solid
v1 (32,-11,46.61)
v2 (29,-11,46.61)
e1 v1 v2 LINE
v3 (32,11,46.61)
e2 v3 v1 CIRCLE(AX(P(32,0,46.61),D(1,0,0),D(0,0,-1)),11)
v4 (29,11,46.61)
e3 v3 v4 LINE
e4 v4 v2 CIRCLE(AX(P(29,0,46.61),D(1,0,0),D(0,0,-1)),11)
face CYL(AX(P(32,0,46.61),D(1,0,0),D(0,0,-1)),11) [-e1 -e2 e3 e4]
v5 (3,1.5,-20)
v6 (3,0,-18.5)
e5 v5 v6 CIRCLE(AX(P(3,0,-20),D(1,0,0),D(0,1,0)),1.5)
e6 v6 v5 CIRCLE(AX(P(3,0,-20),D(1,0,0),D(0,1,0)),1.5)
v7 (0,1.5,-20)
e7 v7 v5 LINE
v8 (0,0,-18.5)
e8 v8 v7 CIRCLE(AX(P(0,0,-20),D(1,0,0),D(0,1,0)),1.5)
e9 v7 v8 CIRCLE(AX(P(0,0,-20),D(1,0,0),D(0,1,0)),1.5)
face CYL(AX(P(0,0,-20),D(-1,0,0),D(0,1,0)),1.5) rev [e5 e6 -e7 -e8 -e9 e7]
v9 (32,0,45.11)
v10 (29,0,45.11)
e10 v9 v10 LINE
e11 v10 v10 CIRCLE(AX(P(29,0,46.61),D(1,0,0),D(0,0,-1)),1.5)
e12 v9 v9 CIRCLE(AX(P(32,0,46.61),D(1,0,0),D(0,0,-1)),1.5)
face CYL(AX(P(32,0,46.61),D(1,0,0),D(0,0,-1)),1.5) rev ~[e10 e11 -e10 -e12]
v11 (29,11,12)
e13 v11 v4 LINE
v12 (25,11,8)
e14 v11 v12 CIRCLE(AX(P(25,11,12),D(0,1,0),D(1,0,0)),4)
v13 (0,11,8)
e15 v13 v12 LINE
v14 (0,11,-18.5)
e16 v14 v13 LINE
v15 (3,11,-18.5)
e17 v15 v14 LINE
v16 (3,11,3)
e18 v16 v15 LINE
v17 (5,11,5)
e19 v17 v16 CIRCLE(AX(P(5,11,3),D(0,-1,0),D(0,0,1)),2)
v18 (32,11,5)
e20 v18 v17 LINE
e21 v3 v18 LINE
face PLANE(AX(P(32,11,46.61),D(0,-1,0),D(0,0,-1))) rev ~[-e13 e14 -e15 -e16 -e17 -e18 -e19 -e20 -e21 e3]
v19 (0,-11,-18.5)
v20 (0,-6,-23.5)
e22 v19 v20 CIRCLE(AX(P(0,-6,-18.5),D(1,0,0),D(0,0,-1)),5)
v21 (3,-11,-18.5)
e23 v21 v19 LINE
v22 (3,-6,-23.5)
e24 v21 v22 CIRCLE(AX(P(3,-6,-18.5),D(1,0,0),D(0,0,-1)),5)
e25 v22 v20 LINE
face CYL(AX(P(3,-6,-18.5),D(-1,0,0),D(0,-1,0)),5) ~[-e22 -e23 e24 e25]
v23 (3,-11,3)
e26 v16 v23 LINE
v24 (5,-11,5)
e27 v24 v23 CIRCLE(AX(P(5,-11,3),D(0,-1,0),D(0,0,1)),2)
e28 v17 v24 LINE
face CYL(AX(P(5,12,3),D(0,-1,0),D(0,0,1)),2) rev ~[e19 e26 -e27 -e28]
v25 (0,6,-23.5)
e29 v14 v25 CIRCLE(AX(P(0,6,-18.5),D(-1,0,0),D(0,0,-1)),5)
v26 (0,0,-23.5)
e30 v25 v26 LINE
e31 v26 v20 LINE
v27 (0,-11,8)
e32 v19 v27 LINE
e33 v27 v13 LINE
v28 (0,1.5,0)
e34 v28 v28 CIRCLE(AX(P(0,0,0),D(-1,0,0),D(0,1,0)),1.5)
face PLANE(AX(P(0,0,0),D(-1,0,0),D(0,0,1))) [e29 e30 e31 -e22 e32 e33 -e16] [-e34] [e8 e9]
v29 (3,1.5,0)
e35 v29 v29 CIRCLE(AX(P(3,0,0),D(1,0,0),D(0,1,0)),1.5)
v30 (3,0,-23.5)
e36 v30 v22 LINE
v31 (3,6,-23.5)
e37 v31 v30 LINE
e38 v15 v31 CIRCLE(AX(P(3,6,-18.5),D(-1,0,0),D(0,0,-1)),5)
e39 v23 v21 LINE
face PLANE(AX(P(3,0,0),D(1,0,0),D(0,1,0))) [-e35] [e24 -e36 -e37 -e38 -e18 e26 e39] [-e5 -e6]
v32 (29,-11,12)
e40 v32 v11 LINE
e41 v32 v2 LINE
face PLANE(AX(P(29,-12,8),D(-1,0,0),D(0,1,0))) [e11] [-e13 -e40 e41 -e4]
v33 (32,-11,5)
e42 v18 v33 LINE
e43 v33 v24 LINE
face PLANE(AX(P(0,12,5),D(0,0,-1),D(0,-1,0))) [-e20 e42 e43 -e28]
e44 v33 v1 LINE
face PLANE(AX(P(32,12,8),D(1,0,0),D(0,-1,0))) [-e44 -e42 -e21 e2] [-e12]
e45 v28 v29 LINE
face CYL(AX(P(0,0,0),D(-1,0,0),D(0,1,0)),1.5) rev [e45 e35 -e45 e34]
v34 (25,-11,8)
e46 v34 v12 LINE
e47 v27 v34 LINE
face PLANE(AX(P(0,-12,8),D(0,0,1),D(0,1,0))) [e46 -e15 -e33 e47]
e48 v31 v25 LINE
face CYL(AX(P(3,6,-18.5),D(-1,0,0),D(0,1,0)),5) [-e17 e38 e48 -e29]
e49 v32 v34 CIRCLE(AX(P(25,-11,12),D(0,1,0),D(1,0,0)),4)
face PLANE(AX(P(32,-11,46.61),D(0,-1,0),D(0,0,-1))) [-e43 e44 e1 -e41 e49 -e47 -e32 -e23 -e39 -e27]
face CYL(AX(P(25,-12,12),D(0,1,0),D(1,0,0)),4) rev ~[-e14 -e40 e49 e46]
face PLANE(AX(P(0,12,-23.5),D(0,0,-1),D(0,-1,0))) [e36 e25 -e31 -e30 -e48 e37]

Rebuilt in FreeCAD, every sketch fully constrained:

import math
import FreeCAD as App
import Part
import Sketcher


def edges_at(feature, points):
    """Names of the edges that pass closest to the given points."""
    edges = feature.Shape.Edges
    near = lambda p: min(range(len(edges)), key=lambda i: edges[i].distToShape(Part.Vertex(*p))[0])
    return sorted({f"Edge{near(p) + 1}" for p in points})


def add_polygon(sketch, points):
    """Adds a closed chain of lines whose ends are joined by coincident constraints."""
    first, n = sketch.GeometryCount, len(points)
    for a, b in zip(points, points[1:] + points[:1]):
        sketch.addGeometry(Part.LineSegment(App.Vector(*a, 0), App.Vector(*b, 0)), False)
    for i in range(n):
        sketch.addConstraint(Sketcher.Constraint("Coincident", first + i, 2, first + (i + 1) % n, 1))

doc = App.newDocument("Part")
params = doc.addObject("Spreadsheet::Sheet", "Params")
for row, (alias, value) in enumerate([
    ("sketch1_diameter", "3 mm"),
    ("sketch1_width", "12 mm"),
    ("sketch1_height", "28.5 mm"),
    ("pad1_length", "3 mm"),
    ("sketch2_height", "3 mm"),
    ("sketch2_width", "24 mm"),
    ("pad2_length", "32 mm"),
    ("sketch3_width", "3 mm"),
    ("sketch3_height", "24 mm"),
    ("pad3_length", "50 mm"),
    ("sketch4_diameter", "3 mm"),
    ("pocket1_length", "50 mm"),
    ("fillet_radius", "2 mm"),
    ("fillet2_radius", "4 mm"),
    ("sketch5_radius", "11 mm"),
    ("sketch5_width", "1 mm"),
    ("sketch5_height", "81.5 mm"),
    ("sketch5_height2", "70.11 mm"),
    ("fillet3_radius", "5 mm"),
], start=1):
    params.set(f"A{row}", alias)
    params.set(f"B{row}", "=" + value)
    params.setAlias(f"B{row}", alias)

body = doc.addObject("PartDesign::Body", "Body")

# Sketch on YZ plane
sketch1 = body.newObject("Sketcher::SketchObject", "Sketch")
sketch1.AttachmentSupport = (doc.getObject("YZ_Plane"), [""])
sketch1.MapMode = "FlatFace"
add_polygon(sketch1, [(12, 5), (-12, 5), (-12, -23.5), (0, -23.5), (12, -23.5)])  # lines 0-4
sketch1.addGeometry(Part.Circle(App.Vector(0, 0, 0), App.Vector(0, 0, 1), 1.5), False)  # 5
sketch1.addGeometry(Part.Circle(App.Vector(0, -20, 0), App.Vector(0, 0, 1), 1.5), False)  # 6
sketch1.addConstraint(Sketcher.Constraint("Horizontal", 0))
sketch1.addConstraint(Sketcher.Constraint("Vertical", 1))
sketch1.addConstraint(Sketcher.Constraint("Horizontal", 2))
sketch1.addConstraint(Sketcher.Constraint("Horizontal", 3))
sketch1.addConstraint(Sketcher.Constraint("Vertical", 4))
sketch1.addConstraint(Sketcher.Constraint("Coincident", 5, 3, -1, 1))
sketch1.addConstraint(Sketcher.Constraint("Equal", 5, 6))
sketch1.addConstraint(Sketcher.Constraint("PointOnObject", 6, 3, -2))
sketch1.addConstraint(Sketcher.Constraint("PointOnObject", 2, 2, -2))
sketch1.addConstraint(Sketcher.Constraint("Equal", 2, 3))
sketch1.addConstraint(Sketcher.Constraint("Diameter", 5, 3.0))
sketch1.addConstraint(Sketcher.Constraint("DistanceX", 2, 1, 2, 2, 12.0))
sketch1.addConstraint(Sketcher.Constraint("DistanceY", 6, 3, -1, 1, 20.0))
sketch1.addConstraint(Sketcher.Constraint("DistanceY", -1, 1, 0, 2, 5.0))
sketch1.addConstraint(Sketcher.Constraint("DistanceY", 1, 2, 1, 1, 28.5))
sketch1.setExpression("Constraints[15]", "Params.sketch1_diameter")
sketch1.setExpression("Constraints[16]", "Params.sketch1_width")
sketch1.setExpression("Constraints[19]", "Params.sketch1_height")
pad1 = body.newObject("PartDesign::Pad", "Pad")
pad1.Profile = sketch1
pad1.setExpression("Length", "Params.pad1_length")

# Sketch on YZ plane
sketch2 = body.newObject("Sketcher::SketchObject", "Sketch001")
sketch2.AttachmentSupport = (doc.getObject("YZ_Plane"), [""])
sketch2.MapMode = "FlatFace"
add_polygon(sketch2, [(12, 8), (12, 5), (-12, 5), (-12, 8)])  # lines 0-3
sketch2.addConstraint(Sketcher.Constraint("Vertical", 0))
sketch2.addConstraint(Sketcher.Constraint("Horizontal", 1))
sketch2.addConstraint(Sketcher.Constraint("Vertical", 2))
sketch2.addConstraint(Sketcher.Constraint("Horizontal", 3))
sketch2.addConstraint(Sketcher.Constraint("DistanceY", 0, 2, 0, 1, 3.0))
sketch2.addConstraint(Sketcher.Constraint("DistanceX", 1, 2, 1, 1, 24.0))
sketch2.addConstraint(Sketcher.Constraint("DistanceX", -1, 1, 0, 2, 12.0))
sketch2.addConstraint(Sketcher.Constraint("DistanceY", -1, 1, 0, 2, 5.0))
sketch2.setExpression("Constraints[8]", "Params.sketch2_height")
sketch2.setExpression("Constraints[9]", "Params.sketch2_width")
pad2 = body.newObject("PartDesign::Pad", "Pad001")
pad2.Profile = sketch2
pad2.setExpression("Length", "Params.pad2_length")

# Sketch on XY plane
sketch3 = body.newObject("Sketcher::SketchObject", "Sketch002")
sketch3.AttachmentSupport = (doc.getObject("XY_Plane"), [""])
sketch3.MapMode = "FlatFace"
sketch3.AttachmentOffset = App.Placement(App.Vector(0, 0, 8), App.Rotation())
add_polygon(sketch3, [(29, 12), (29, -12), (32, -12), (32, 12)])  # lines 0-3
sketch3.addConstraint(Sketcher.Constraint("Vertical", 0))
sketch3.addConstraint(Sketcher.Constraint("Horizontal", 1))
sketch3.addConstraint(Sketcher.Constraint("Vertical", 2))
sketch3.addConstraint(Sketcher.Constraint("Horizontal", 3))
sketch3.addConstraint(Sketcher.Constraint("DistanceX", 1, 1, 1, 2, 3.0))
sketch3.addConstraint(Sketcher.Constraint("DistanceY", 0, 2, 0, 1, 24.0))
sketch3.addConstraint(Sketcher.Constraint("DistanceX", -1, 1, 0, 2, 29.0))
sketch3.addConstraint(Sketcher.Constraint("DistanceY", 0, 2, -1, 1, 12.0))
sketch3.setExpression("Constraints[8]", "Params.sketch3_width")
sketch3.setExpression("Constraints[9]", "Params.sketch3_height")
pad3 = body.newObject("PartDesign::Pad", "Pad002")
pad3.Profile = sketch3
pad3.setExpression("Length", "Params.pad3_length")

# Sketch on YZ plane
sketch4 = body.newObject("Sketcher::SketchObject", "Sketch003")
sketch4.AttachmentSupport = (doc.getObject("YZ_Plane"), [""])
sketch4.MapMode = "FlatFace"
sketch4.AttachmentOffset = App.Placement(App.Vector(0, 0, 32), App.Rotation())
sketch4.addGeometry(Part.Circle(App.Vector(0, 46.61, 0), App.Vector(0, 0, 1), 1.5), False)
sketch4.addConstraint(Sketcher.Constraint("PointOnObject", 0, 3, -2))
sketch4.addConstraint(Sketcher.Constraint("Diameter", 0, 3.0))
sketch4.addConstraint(Sketcher.Constraint("DistanceY", -1, 1, 0, 3, 46.61))
sketch4.setExpression("Constraints[1]", "Params.sketch4_diameter")
pocket1 = body.newObject("PartDesign::Pocket", "Pocket")
pocket1.Profile = sketch4
pocket1.setExpression("Length", "Params.pocket1_length")
doc.recompute()

fillet = body.newObject("PartDesign::Fillet", "Fillet")
fillet.Base = (pocket1, edges_at(pocket1, [(3, 0, 5)]))
fillet.setExpression("Radius", "Params.fillet_radius")
doc.recompute()

fillet2 = body.newObject("PartDesign::Fillet", "Fillet001")
fillet2.Base = (fillet, edges_at(fillet, [(29, 0, 8)]))
fillet2.setExpression("Radius", "Params.fillet2_radius")

# Sketch on YZ plane
sketch5 = body.newObject("Sketcher::SketchObject", "Sketch004")
sketch5.AttachmentSupport = (doc.getObject("YZ_Plane"), [""])
sketch5.MapMode = "FlatFace"
sketch5.AttachmentOffset = App.Placement(App.Vector(0, 0, 32), App.Rotation())
sketch5.addGeometry(Part.LineSegment(App.Vector(-12, 58, 0), App.Vector(-12, -23.5, 0)), False)
sketch5.addGeometry(Part.LineSegment(App.Vector(-12, -23.5, 0), App.Vector(-11, -23.5, 0)), False)
sketch5.addGeometry(Part.LineSegment(App.Vector(-11, -23.5, 0), App.Vector(-11, 46.61, 0)), False)
sketch5.addGeometry(Part.ArcOfCircle(Part.Circle(App.Vector(0, 46.61, 0), App.Vector(0, 0, 1), 11), math.radians(0), math.radians(180)), False)
sketch5.addGeometry(Part.LineSegment(App.Vector(11, 46.61, 0), App.Vector(11, -23.5, 0)), False)
sketch5.addGeometry(Part.LineSegment(App.Vector(11, -23.5, 0), App.Vector(12, -23.5, 0)), False)
sketch5.addGeometry(Part.LineSegment(App.Vector(12, -23.5, 0), App.Vector(12, 58, 0)), False)
sketch5.addGeometry(Part.LineSegment(App.Vector(12, 58, 0), App.Vector(-12, 58, 0)), False)
sketch5.addConstraint(Sketcher.Constraint("Coincident", 0, 2, 1, 1))
sketch5.addConstraint(Sketcher.Constraint("Coincident", 1, 2, 2, 1))
sketch5.addConstraint(Sketcher.Constraint("Tangent", 2, 2, 3, 2))
sketch5.addConstraint(Sketcher.Constraint("Tangent", 3, 1, 4, 1))
sketch5.addConstraint(Sketcher.Constraint("Coincident", 4, 2, 5, 1))
sketch5.addConstraint(Sketcher.Constraint("Coincident", 5, 2, 6, 1))
sketch5.addConstraint(Sketcher.Constraint("Coincident", 6, 2, 7, 1))
sketch5.addConstraint(Sketcher.Constraint("Coincident", 7, 2, 0, 1))
sketch5.addConstraint(Sketcher.Constraint("Vertical", 0))
sketch5.addConstraint(Sketcher.Constraint("Horizontal", 1))
sketch5.addConstraint(Sketcher.Constraint("Vertical", 2))
sketch5.addConstraint(Sketcher.Constraint("Vertical", 4))
sketch5.addConstraint(Sketcher.Constraint("Horizontal", 5))
sketch5.addConstraint(Sketcher.Constraint("Vertical", 6))
sketch5.addConstraint(Sketcher.Constraint("Horizontal", 7))
sketch5.addConstraint(Sketcher.Constraint("Symmetric", 1, 2, 4, 2, -2))
sketch5.addConstraint(Sketcher.Constraint("Equal", 1, 5))
sketch5.addConstraint(Sketcher.Constraint("Radius", 3, 11.0))
sketch5.addConstraint(Sketcher.Constraint("DistanceX", 1, 1, 1, 2, 1.0))
sketch5.addConstraint(Sketcher.Constraint("DistanceY", 0, 2, 0, 1, 81.5))
sketch5.addConstraint(Sketcher.Constraint("DistanceY", -1, 1, 6, 2, 58.0))
sketch5.addConstraint(Sketcher.Constraint("DistanceY", 2, 1, 2, 2, 70.11))
sketch5.setExpression("Constraints[17]", "Params.sketch5_radius")
sketch5.setExpression("Constraints[18]", "Params.sketch5_width")
sketch5.setExpression("Constraints[19]", "Params.sketch5_height")
sketch5.setExpression("Constraints[21]", "Params.sketch5_height2")
pocket2 = body.newObject("PartDesign::Pocket", "Pocket001")
pocket2.Profile = sketch5
pocket2.Type = "ThroughAll"
doc.recompute()

fillet3 = body.newObject("PartDesign::Fillet", "Fillet002")
fillet3.Base = (pocket2, edges_at(pocket2, [(1.5, -11, -23.5), (1.5, 11, -23.5)]))
fillet3.setExpression("Radius", "Params.fillet3_radius")

doc.recompute()
